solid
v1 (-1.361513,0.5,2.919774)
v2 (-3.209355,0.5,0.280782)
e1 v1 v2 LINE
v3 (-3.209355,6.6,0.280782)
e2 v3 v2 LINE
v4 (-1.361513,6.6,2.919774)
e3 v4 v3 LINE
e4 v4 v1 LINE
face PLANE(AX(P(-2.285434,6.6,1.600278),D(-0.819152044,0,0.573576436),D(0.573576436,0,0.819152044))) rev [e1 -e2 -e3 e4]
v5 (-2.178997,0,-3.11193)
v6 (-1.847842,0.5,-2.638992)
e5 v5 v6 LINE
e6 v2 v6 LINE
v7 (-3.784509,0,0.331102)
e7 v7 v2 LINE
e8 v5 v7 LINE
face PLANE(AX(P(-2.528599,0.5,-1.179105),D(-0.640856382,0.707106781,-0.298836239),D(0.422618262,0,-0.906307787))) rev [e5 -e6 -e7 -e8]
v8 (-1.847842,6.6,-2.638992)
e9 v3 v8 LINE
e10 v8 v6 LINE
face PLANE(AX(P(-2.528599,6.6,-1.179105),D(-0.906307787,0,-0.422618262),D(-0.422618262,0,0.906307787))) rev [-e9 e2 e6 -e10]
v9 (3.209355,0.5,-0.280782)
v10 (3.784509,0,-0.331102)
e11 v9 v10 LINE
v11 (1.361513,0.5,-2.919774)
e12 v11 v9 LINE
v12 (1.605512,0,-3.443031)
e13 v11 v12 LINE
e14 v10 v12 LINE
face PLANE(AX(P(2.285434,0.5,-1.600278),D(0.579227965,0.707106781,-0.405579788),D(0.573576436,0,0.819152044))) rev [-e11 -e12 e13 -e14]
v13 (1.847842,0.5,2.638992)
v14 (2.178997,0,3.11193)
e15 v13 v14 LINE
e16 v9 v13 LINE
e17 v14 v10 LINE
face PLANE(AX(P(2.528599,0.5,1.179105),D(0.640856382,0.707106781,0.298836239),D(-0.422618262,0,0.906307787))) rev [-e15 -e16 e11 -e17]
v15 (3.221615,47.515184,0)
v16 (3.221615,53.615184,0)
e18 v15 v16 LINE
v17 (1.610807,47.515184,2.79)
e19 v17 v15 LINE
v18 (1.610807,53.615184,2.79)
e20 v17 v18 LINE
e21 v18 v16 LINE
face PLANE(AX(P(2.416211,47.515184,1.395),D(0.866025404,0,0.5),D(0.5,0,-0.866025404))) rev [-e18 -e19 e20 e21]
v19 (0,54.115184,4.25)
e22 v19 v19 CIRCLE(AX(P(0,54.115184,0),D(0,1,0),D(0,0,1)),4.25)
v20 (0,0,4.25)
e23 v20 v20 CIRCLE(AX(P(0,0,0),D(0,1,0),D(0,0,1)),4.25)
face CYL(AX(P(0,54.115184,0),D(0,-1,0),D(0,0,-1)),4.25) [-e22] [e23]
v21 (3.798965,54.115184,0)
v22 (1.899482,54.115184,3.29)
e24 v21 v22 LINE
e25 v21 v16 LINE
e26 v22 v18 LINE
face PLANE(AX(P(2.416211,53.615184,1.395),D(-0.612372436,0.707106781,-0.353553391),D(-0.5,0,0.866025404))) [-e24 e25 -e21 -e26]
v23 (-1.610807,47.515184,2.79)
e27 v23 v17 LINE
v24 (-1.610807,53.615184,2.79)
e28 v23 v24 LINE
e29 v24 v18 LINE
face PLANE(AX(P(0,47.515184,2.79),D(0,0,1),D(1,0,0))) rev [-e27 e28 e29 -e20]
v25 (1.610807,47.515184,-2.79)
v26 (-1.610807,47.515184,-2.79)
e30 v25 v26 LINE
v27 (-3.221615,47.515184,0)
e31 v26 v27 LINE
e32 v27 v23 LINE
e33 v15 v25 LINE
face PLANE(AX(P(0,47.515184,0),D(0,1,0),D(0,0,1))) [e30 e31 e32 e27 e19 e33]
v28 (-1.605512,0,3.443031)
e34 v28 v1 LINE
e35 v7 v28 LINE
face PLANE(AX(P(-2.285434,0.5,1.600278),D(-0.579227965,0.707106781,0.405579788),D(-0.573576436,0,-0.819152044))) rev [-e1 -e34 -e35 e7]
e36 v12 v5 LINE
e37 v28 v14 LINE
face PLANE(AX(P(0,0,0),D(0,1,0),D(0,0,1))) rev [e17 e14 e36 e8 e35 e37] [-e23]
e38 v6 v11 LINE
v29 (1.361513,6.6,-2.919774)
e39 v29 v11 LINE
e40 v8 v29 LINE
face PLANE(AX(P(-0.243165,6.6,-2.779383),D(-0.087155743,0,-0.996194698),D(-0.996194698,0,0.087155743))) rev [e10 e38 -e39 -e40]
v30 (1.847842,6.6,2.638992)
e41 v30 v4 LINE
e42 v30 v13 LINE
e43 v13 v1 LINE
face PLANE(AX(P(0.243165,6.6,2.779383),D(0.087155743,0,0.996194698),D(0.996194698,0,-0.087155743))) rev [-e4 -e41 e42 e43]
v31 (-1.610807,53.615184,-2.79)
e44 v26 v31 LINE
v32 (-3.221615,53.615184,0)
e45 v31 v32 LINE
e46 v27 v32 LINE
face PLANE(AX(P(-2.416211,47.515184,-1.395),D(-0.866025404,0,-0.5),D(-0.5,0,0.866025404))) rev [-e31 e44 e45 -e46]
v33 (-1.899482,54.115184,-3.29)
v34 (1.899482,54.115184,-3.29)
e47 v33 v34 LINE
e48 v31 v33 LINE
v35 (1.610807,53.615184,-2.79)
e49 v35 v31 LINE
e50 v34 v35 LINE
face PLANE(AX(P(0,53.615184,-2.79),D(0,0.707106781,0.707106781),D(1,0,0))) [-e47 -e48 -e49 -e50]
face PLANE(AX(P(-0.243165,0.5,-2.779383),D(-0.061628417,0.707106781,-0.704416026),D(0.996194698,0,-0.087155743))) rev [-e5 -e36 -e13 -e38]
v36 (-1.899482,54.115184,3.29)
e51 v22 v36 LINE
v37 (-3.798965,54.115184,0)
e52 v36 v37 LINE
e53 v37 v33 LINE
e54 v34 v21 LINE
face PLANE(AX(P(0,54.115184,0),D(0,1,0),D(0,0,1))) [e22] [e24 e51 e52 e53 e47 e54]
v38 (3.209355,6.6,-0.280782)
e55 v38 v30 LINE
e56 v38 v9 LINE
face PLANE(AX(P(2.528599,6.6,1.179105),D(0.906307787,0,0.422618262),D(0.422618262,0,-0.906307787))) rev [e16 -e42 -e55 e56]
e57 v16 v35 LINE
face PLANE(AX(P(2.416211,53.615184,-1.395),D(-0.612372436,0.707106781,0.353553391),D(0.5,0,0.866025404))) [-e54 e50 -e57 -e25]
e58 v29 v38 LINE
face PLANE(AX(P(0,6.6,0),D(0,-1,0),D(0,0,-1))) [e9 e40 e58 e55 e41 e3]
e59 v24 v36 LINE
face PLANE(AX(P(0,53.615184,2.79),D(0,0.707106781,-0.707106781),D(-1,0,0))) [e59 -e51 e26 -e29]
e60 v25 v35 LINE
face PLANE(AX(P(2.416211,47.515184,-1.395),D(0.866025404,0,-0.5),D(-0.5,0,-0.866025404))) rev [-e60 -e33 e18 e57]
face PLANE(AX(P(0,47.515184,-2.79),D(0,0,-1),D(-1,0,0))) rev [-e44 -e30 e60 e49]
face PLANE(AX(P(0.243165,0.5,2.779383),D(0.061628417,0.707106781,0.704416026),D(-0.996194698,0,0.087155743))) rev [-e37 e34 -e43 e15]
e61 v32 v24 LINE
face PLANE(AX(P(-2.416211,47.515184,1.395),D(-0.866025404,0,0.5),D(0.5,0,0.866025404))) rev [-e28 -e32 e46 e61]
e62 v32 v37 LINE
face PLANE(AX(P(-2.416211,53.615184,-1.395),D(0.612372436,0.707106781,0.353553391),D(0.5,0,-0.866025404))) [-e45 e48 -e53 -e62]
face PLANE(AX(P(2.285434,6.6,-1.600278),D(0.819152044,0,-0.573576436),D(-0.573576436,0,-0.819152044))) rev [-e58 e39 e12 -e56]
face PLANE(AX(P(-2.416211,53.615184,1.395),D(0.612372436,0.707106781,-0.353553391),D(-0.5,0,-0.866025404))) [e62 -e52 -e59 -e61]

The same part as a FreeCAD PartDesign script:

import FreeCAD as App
import Part
import Sketcher

V = App.Vector
Q = App.Units.Quantity


def edges_at(feature, points):
    """Names of the edges that pass closest to the given points."""
    edges = feature.Shape.Edges
    near = lambda p: min(range(len(edges)), key=lambda i: edges[i].distToShape(Part.Vertex(*p))[0])
    return sorted({f"Edge{near(p) + 1}" for p in points})


def add_polygon(sketch, points):
    """Adds a closed chain of lines whose ends are joined by coincident constraints."""
    first, n = sketch.GeometryCount, len(points)
    for a, b in zip(points, points[1:] + points[:1]):
        sketch.addGeometry(Part.LineSegment(App.Vector(*a, 0), App.Vector(*b, 0)), False)
    for i in range(n):
        sketch.addConstraint(Sketcher.Constraint("Coincident", first + i, 2, first + (i + 1) % n, 1))

doc = App.newDocument("Part")
body = doc.addObject("PartDesign::Body", "Body")

# Sketch on XZ plane
sketch1 = body.newObject("Sketcher::SketchObject", "Sketch")
sketch1.AttachmentSupport = (doc.getObject("XZ_Plane"), [""])
sketch1.MapMode = "FlatFace"
sketch1.addGeometry(Part.Circle(V(0, 0, 0), V(0, 0, 1), 4.2), False)
sketch1.addConstraint([
    Sketcher.Constraint("Coincident", 0, 3, -1, 1),
    Sketcher.Constraint("Diameter", 0, 8.5),
])
pad1 = body.newObject("PartDesign::Pad", "Pad")
pad1.Profile = sketch1
pad1.Length = 54.115184
pad1.Reversed = True

# Sketch on XZ plane
sketch2 = body.newObject("Sketcher::SketchObject", "Sketch001")
sketch2.AttachmentSupport = (doc.getObject("XZ_Plane"), [""])
sketch2.MapMode = "FlatFace"
sketch2.AttachmentOffset = App.Placement(V(0, 0, -54.115184), App.Rotation())
add_polygon(sketch2, [(-1.6, -2.8), (-3.2, 0), (-1.6, 2.8), (1.6, 2.8), (3.2, 0), (1.6, -2.8)])  # lines 0-5
sketch2.addConstraint([
    Sketcher.Constraint("Horizontal", 2),
    Sketcher.Constraint("Horizontal", 5),
    Sketcher.Constraint("Symmetric", 0, 2, 3, 2, -1, 1),
    Sketcher.Constraint("Symmetric", 1, 2, 4, 2, -1, 1),
    Sketcher.Constraint("PointOnObject", 0, 2, -1),
    Sketcher.Constraint("Parallel", 0, 3),
    Sketcher.Constraint("Vertical", 2, 2, 4, 2),
    Sketcher.Constraint("Angle", 0, Q("120 deg")),
    Sketcher.Constraint("DistanceY", -1, 1, 1, 2, 2.79),
    Sketcher.Constraint("DistanceX", 2, 1, 2, 2, 3.221615),
])
pocket1 = body.newObject("PartDesign::Pocket", "Pocket")
pocket1.Profile = sketch2
pocket1.Length = 6.6
pocket1.Reversed = True
doc.recompute()

chamfer = body.newObject("PartDesign::Chamfer", "Chamfer")
chamfer.Base = (pocket1, edges_at(pocket1, [
    (-2.416, 54.115, 1.395),
    (0, 54.115, 2.79),
    (2.416, 54.115, 1.395),
    (2.416, 54.115, -1.395),
    (0, 54.115, -2.79),
    (-2.416, 54.115, -1.395),
]))
chamfer.Size = 0.5

# Sketch on XZ plane
sketch3 = body.newObject("Sketcher::SketchObject", "Sketch002")
sketch3.AttachmentSupport = (doc.getObject("XZ_Plane"), [""])
sketch3.MapMode = "FlatFace"
add_polygon(sketch3, [(-1.8, -2.6), (1.4, -2.9), (3.2, -0.3), (1.8, 2.6), (-1.4, 2.9), (-3.2, 0.3)])  # lines 0-5
sketch3.addConstraint([
    Sketcher.Constraint("Symmetric", 0, 2, 3, 2, -1, 1),
    Sketcher.Constraint("Symmetric", 1, 2, 4, 2, -1, 1),
    Sketcher.Constraint("Symmetric", 2, 2, 5, 2, -1, 1),
    Sketcher.Constraint("Equal", 0, 1),
    Sketcher.Constraint("Equal", 1, 2),
    Sketcher.Constraint("Angle", 0, Q("-5 deg")),
    Sketcher.Constraint("Angle", 1, Q("55 deg")),
    Sketcher.Constraint("Angle", 2, Q("115 deg")),
    Sketcher.Constraint("DistanceX", 0, 2, 2, 2, 0.486329),
])
pocket2 = body.newObject("PartDesign::Pocket", "Pocket001")
pocket2.Profile = sketch3
pocket2.Length = 6.6
doc.recompute()

chamfer2 = body.newObject("PartDesign::Chamfer", "Chamfer001")
chamfer2.Base = (pocket2, edges_at(pocket2, [
    (-0.243, 0, -2.779),
    (2.285, 0, -1.6),
    (2.529, 0, 1.179),
    (0.243, 0, 2.779),
    (-2.285, 0, 1.6),
    (-2.529, 0, -1.179),
]))
chamfer2.Size = 0.5

doc.recompute()
